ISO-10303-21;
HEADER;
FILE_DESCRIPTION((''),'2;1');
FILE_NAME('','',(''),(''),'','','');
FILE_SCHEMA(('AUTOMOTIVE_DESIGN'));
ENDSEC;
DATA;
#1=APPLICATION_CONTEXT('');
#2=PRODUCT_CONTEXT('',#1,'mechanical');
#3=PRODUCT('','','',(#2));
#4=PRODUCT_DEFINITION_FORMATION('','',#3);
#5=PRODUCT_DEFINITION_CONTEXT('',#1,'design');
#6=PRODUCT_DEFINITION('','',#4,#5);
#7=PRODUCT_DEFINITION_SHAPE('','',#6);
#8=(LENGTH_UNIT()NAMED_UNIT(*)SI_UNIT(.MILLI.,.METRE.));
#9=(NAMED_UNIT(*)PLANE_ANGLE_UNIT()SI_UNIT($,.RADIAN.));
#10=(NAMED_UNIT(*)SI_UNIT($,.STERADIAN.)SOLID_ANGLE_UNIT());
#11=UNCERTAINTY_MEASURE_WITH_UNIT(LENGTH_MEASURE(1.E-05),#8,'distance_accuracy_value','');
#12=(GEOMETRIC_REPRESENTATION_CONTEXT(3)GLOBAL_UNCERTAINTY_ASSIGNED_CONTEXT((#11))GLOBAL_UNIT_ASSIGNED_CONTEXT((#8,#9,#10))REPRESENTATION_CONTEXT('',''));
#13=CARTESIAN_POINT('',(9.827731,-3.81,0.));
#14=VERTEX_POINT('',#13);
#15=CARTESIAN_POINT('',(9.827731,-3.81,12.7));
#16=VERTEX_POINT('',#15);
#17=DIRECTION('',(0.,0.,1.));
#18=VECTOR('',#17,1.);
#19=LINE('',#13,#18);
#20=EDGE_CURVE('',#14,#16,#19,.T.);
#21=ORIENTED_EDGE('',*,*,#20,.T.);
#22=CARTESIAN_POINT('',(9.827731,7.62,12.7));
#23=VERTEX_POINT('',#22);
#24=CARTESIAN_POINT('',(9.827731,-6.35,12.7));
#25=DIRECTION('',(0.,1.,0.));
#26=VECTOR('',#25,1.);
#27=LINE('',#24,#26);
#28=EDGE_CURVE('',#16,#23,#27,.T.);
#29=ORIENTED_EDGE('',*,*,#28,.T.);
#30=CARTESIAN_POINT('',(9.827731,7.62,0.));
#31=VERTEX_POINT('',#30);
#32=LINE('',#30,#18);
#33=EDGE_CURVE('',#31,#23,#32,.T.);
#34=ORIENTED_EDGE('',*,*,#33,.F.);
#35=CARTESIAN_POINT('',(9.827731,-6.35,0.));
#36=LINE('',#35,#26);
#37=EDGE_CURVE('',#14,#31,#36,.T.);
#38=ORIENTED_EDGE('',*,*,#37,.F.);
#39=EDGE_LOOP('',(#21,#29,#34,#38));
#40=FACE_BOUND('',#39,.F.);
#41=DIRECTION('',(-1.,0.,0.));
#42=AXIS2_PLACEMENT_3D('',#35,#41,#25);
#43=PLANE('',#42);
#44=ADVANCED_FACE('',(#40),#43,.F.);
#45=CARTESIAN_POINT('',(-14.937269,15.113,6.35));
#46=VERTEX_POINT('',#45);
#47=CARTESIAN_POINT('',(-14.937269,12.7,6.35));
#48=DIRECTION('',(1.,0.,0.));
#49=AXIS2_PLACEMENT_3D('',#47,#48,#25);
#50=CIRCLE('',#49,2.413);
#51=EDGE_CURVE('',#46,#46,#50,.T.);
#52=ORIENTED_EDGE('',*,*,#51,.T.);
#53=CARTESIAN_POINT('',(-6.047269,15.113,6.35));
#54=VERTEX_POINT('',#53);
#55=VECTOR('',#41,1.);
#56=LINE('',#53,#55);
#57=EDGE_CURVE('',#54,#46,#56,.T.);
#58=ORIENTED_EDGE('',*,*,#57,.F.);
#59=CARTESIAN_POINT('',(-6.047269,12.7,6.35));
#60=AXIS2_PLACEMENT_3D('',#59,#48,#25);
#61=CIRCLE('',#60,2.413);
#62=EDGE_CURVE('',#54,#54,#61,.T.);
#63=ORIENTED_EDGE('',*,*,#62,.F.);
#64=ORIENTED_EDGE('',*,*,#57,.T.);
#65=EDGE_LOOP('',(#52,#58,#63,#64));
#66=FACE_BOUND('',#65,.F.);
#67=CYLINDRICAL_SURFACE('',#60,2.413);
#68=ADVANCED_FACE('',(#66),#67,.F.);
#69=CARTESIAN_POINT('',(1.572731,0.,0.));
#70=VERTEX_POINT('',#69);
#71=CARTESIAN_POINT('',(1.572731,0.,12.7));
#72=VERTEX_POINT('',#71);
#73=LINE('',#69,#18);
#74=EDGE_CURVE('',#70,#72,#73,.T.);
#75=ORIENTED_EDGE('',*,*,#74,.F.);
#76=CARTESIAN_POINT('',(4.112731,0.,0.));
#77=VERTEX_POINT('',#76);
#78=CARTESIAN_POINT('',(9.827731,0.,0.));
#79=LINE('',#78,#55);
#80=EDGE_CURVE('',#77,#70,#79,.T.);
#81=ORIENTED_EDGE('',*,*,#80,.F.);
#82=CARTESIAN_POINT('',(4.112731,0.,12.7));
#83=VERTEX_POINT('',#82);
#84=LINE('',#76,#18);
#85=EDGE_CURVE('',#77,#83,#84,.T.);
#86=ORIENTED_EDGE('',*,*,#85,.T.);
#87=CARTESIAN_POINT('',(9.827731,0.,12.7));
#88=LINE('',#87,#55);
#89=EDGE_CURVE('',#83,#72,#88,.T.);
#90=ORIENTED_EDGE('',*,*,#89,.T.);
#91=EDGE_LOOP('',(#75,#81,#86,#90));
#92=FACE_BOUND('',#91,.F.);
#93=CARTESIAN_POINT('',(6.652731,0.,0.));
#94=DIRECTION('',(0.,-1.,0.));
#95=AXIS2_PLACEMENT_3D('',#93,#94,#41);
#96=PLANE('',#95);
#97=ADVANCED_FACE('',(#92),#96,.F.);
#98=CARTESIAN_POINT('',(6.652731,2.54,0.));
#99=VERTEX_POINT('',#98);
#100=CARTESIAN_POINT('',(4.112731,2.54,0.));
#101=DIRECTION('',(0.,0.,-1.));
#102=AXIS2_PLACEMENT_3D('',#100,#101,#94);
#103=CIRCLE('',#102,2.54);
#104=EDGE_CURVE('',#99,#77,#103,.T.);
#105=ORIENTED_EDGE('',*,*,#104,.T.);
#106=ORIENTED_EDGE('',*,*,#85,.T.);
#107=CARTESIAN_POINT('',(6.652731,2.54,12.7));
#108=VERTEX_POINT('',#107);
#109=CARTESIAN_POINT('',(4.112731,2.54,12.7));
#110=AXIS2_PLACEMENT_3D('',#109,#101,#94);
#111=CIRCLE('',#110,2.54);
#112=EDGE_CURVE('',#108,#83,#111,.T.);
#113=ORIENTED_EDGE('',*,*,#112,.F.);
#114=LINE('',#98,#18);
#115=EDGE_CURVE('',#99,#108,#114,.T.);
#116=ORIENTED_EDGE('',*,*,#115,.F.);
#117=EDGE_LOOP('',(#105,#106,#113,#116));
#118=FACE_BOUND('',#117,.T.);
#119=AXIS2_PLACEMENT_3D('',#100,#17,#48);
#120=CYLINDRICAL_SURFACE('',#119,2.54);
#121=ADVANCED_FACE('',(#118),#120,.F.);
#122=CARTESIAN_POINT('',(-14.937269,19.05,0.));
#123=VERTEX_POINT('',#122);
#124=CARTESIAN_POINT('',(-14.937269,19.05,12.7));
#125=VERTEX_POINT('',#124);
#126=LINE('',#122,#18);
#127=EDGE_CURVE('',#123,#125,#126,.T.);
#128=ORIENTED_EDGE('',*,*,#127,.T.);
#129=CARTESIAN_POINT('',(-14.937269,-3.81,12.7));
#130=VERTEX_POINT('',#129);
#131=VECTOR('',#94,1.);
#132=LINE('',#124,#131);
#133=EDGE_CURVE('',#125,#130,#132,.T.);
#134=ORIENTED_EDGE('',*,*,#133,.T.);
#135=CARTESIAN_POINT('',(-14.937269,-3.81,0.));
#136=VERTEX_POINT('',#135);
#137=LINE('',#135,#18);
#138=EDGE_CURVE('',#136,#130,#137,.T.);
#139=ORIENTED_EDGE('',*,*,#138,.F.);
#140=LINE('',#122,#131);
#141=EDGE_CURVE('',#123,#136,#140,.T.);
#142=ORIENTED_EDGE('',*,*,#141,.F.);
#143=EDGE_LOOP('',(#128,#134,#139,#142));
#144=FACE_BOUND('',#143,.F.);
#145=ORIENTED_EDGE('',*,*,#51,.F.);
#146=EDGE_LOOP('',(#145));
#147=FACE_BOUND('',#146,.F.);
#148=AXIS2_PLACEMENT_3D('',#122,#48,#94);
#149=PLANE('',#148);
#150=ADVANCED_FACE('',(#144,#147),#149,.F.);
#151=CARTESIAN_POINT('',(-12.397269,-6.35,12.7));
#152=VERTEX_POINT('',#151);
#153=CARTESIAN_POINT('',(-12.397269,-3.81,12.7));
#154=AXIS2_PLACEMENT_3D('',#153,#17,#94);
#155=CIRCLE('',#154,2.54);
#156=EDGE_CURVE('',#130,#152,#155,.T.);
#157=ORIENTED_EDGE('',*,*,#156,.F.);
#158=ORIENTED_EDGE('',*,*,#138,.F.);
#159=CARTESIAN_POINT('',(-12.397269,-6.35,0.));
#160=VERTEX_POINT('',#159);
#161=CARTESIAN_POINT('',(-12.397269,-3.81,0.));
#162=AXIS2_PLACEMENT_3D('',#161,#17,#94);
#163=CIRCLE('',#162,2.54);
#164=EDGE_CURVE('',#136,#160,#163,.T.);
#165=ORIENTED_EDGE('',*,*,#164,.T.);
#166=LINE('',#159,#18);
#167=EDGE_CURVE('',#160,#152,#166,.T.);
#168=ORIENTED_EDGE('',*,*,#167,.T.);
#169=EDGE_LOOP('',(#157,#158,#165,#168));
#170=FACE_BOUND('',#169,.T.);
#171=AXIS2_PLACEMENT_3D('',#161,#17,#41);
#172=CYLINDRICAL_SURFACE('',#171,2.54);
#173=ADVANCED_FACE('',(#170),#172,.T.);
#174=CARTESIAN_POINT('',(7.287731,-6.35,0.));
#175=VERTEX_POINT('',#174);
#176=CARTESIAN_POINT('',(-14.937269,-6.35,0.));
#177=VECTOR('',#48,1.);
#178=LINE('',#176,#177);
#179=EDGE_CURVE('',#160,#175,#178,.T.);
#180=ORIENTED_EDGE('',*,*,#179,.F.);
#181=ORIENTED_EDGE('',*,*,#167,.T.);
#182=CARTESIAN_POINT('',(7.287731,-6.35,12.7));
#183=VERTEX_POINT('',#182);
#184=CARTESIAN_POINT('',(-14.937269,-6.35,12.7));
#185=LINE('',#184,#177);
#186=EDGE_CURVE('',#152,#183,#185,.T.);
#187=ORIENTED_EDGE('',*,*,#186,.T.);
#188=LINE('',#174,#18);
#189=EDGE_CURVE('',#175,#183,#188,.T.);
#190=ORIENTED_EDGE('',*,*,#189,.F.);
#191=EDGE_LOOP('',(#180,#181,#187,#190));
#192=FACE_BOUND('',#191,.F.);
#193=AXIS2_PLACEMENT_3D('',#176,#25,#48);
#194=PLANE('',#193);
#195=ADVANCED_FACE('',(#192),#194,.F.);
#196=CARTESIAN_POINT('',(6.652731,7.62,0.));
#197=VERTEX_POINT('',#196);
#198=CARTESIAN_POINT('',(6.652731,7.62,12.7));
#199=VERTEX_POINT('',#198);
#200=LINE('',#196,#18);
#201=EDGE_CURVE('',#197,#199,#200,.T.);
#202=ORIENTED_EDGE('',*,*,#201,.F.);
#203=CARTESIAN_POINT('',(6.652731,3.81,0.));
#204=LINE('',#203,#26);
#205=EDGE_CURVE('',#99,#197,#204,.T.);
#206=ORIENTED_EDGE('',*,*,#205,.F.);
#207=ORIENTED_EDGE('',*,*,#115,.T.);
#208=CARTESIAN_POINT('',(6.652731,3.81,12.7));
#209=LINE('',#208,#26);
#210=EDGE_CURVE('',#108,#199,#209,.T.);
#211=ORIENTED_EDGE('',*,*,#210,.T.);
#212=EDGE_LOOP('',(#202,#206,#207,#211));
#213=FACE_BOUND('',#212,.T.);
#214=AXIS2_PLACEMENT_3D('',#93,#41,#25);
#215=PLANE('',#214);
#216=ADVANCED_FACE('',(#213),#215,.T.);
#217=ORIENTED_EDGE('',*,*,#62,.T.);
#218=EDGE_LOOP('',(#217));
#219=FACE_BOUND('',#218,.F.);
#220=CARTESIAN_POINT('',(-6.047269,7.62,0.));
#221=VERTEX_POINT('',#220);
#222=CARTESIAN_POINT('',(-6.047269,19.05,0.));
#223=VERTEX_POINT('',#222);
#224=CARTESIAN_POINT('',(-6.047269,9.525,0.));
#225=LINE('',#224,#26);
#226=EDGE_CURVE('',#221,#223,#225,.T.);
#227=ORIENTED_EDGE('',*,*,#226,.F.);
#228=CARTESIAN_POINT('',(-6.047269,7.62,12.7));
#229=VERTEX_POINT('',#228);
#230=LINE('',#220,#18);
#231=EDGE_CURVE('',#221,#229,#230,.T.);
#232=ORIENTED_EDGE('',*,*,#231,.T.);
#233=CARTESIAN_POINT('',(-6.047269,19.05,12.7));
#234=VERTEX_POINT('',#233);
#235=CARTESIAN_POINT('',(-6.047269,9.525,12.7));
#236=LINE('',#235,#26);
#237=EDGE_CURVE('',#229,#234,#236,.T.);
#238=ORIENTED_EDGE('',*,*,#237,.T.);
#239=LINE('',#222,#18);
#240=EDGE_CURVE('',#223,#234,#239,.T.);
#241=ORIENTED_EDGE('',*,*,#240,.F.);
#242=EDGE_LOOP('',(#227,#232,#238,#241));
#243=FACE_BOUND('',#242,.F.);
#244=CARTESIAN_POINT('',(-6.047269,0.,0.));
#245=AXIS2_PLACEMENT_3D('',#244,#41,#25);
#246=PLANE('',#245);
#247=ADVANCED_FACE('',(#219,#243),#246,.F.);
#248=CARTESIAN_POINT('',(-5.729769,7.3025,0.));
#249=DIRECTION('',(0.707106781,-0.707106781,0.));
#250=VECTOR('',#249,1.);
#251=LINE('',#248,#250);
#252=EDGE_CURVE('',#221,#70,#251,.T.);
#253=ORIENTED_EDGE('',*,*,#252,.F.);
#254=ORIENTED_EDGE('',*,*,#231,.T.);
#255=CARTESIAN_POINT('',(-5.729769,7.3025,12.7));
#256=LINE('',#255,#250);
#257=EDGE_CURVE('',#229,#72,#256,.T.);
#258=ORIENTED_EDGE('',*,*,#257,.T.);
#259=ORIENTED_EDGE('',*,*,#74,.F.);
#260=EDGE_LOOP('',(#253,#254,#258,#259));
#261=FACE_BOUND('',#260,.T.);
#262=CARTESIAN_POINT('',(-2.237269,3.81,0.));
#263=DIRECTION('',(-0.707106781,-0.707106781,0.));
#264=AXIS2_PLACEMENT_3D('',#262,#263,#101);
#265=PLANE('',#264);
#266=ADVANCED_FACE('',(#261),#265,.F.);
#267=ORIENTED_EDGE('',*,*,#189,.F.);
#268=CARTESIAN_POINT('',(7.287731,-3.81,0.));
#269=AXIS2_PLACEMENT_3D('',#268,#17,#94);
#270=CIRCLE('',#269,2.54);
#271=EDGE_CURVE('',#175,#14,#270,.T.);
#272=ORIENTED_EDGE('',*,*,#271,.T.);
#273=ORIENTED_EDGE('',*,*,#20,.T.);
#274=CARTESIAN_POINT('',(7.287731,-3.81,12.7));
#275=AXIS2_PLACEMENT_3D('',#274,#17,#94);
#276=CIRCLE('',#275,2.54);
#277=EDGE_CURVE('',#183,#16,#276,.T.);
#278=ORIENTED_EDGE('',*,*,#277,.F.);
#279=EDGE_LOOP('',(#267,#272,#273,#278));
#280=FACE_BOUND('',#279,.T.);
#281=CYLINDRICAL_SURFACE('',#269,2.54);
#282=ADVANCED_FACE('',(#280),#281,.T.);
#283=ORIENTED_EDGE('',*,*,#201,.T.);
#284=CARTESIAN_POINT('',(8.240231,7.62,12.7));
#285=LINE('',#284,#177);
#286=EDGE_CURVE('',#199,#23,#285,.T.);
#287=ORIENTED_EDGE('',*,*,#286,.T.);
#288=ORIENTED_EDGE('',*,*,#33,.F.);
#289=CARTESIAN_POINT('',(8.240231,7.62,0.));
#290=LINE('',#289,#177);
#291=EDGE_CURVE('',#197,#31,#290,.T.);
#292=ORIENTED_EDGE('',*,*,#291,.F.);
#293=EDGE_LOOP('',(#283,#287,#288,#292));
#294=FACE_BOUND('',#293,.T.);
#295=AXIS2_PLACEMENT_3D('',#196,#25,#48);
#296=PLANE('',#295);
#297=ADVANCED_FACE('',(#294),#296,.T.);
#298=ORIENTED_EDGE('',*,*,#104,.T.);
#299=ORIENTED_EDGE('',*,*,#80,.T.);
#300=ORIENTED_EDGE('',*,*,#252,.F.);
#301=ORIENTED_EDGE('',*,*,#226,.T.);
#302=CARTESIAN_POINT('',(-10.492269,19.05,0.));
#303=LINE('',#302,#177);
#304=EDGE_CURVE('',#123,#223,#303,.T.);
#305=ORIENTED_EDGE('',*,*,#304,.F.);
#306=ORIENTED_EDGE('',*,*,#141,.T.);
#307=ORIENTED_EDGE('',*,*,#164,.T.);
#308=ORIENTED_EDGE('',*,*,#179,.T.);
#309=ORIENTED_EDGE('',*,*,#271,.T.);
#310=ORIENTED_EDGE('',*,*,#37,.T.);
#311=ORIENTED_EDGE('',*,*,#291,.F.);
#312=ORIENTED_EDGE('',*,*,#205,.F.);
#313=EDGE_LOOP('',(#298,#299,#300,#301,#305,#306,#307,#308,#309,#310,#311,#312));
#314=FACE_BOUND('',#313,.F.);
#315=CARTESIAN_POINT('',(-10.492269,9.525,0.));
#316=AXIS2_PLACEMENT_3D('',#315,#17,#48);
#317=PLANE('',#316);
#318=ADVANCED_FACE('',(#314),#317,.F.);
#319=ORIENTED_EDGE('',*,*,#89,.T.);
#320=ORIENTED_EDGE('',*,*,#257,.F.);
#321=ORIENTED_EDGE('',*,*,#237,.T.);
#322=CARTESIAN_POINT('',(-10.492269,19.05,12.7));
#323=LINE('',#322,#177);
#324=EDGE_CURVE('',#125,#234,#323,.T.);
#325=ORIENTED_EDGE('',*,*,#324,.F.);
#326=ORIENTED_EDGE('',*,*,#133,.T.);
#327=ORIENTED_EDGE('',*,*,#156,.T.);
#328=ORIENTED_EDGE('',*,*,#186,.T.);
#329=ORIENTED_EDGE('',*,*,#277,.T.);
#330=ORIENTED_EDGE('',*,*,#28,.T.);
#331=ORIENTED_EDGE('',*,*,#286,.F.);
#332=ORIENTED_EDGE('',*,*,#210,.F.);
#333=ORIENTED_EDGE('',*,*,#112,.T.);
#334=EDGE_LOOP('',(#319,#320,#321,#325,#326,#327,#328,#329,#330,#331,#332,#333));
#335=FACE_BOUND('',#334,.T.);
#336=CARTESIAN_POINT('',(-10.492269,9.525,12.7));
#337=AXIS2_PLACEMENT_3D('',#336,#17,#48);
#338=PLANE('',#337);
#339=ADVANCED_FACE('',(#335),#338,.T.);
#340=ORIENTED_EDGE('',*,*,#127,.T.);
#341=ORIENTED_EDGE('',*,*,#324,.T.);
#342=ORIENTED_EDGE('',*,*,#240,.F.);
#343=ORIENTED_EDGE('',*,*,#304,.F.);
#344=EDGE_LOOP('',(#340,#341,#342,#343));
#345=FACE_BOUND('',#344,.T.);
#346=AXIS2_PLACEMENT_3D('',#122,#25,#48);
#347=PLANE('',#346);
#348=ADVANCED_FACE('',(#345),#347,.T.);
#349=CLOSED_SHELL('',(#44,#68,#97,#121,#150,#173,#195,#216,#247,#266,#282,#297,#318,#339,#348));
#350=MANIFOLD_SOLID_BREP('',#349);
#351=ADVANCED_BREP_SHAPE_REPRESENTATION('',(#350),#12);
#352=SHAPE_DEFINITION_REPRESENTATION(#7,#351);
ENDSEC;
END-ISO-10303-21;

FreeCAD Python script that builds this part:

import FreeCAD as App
import Part
import Sketcher

V = App.Vector
Q = App.Units.Quantity


def edges_at(feature, points):
    """Names of the edges that pass closest to the given points."""
    edges = feature.Shape.Edges
    near = lambda p: min(range(len(edges)), key=lambda i: edges[i].distToShape(Part.Vertex(*p))[0])
    return sorted({f"Edge{near(p) + 1}" for p in points})

doc = App.newDocument("Part")
body = doc.addObject("PartDesign::Body", "Body")

# Sketch on XY plane
sketch1 = body.newObject("Sketcher::SketchObject", "Sketch")
sketch1.AttachmentSupport = (doc.getObject("XY_Plane"), [""])
sketch1.MapMode = "FlatFace"
sketch1.addGeometry(Part.LineSegment(V(-14.9, 19.1, 0), V(-14.9, -6.3, 0)), False)
sketch1.addGeometry(Part.LineSegment(V(-14.9, -6.3, 0), V(9.8, -6.3, 0)), False)
sketch1.addGeometry(Part.LineSegment(V(9.8, -6.3, 0), V(9.8, 7.6, 0)), False)
sketch1.addGeometry(Part.LineSegment(V(9.8, 7.6, 0), V(6.7, 7.6, 0)), False)
sketch1.addGeometry(Part.LineSegment(V(6.7, 7.6, 0), V(6.7, 0, 0)), False)
sketch1.addGeometry(Part.LineSegment(V(6.7, 0, 0), V(-6, 0, 0)), False)
sketch1.addGeometry(Part.LineSegment(V(-6, 0, 0), V(-6, 19.1, 0)), False)
sketch1.addGeometry(Part.LineSegment(V(-6, 19.1, 0), V(-14.9, 19.1, 0)), False)
sketch1.addConstraint(Sketcher.Constraint("Coincident", 0, 2, 1, 1))
sketch1.addConstraint(Sketcher.Constraint("Coincident", 1, 2, 2, 1))
sketch1.addConstraint(Sketcher.Constraint("Coincident", 2, 2, 3, 1))
sketch1.addConstraint(Sketcher.Constraint("Coincident", 3, 2, 4, 1))
sketch1.addConstraint(Sketcher.Constraint("Coincident", 4, 2, 5, 1))
sketch1.addConstraint(Sketcher.Constraint("Coincident", 5, 2, 6, 1))
sketch1.addConstraint(Sketcher.Constraint("Coincident", 6, 2, 7, 1))
sketch1.addConstraint(Sketcher.Constraint("Coincident", 7, 2, 0, 1))
sketch1.addConstraint(Sketcher.Constraint("Vertical", 0))
sketch1.addConstraint(Sketcher.Constraint("Horizontal", 1))
sketch1.addConstraint(Sketcher.Constraint("Vertical", 2))
sketch1.addConstraint(Sketcher.Constraint("Horizontal", 3))
sketch1.addConstraint(Sketcher.Constraint("Vertical", 4))
sketch1.addConstraint(Sketcher.Constraint("Horizontal", 5))
sketch1.addConstraint(Sketcher.Constraint("Vertical", 6))
sketch1.addConstraint(Sketcher.Constraint("Horizontal", 7))
sketch1.addConstraint(Sketcher.Constraint("PointOnObject", 4, 2, -1))
sketch1.addConstraint(Sketcher.Constraint("DistanceY", 0, 2, 0, 1, Q("1 in")))
sketch1.addConstraint(Sketcher.Constraint("DistanceX", 5, 2, 5, 1, Q("0.5 in")))
sketch1.addConstraint(Sketcher.Constraint("DistanceY", 4, 2, 4, 1, Q("0.3 in")))
sketch1.addConstraint(Sketcher.Constraint("DistanceX", 7, 2, 7, 1, Q("0.35 in")))
sketch1.addConstraint(Sketcher.Constraint("DistanceY", 2, 1, 2, 2, Q("0.55 in")))
sketch1.addConstraint(Sketcher.Constraint("DistanceX", 1, 1, 1, 2, Q("0.975 in")))
sketch1.addConstraint(Sketcher.Constraint("DistanceX", 0, 2, -1, 1, Q("14.937269 mm")))
pad1 = body.newObject("PartDesign::Pad", "Pad")
pad1.Profile = sketch1
pad1.Length = Q("0.5 in")
doc.recompute()

fillet = body.newObject("PartDesign::Fillet", "Fillet")
fillet.Base = (pad1, edges_at(pad1, [(6.653, 0, 6.35), (9.828, -6.35, 6.35), (-14.937, -6.35, 6.35)]))
fillet.Radius = Q("0.1 in")

# Sketch on YZ plane
sketch2 = body.newObject("Sketcher::SketchObject", "Sketch001")
sketch2.AttachmentSupport = (doc.getObject("YZ_Plane"), [""])
sketch2.MapMode = "FlatFace"
sketch2.AttachmentOffset = App.Placement(V(0, 0, -6.047269), App.Rotation())
sketch2.addGeometry(Part.Circle(V(12.7, 6.3, 0), V(0, 0, 1), 2.4), False)
sketch2.addConstraint(Sketcher.Constraint("Diameter", 0, Q("0.19 in")))
sketch2.addConstraint(Sketcher.Constraint("DistanceX", -1, 1, 0, 3, Q("0.5 in")))
sketch2.addConstraint(Sketcher.Constraint("DistanceY", -1, 1, 0, 3, Q("0.25 in")))
pocket1 = body.newObject("PartDesign::Pocket", "Pocket")
pocket1.Profile = sketch2
pocket1.Length = Q("1 in")
doc.recompute()

chamfer = body.newObject("PartDesign::Chamfer", "Chamfer")
chamfer.Base = (pocket1, edges_at(pocket1, [(-6.047, 0, 6.35)]))
chamfer.Size = Q("0.3 in")

doc.recompute()
